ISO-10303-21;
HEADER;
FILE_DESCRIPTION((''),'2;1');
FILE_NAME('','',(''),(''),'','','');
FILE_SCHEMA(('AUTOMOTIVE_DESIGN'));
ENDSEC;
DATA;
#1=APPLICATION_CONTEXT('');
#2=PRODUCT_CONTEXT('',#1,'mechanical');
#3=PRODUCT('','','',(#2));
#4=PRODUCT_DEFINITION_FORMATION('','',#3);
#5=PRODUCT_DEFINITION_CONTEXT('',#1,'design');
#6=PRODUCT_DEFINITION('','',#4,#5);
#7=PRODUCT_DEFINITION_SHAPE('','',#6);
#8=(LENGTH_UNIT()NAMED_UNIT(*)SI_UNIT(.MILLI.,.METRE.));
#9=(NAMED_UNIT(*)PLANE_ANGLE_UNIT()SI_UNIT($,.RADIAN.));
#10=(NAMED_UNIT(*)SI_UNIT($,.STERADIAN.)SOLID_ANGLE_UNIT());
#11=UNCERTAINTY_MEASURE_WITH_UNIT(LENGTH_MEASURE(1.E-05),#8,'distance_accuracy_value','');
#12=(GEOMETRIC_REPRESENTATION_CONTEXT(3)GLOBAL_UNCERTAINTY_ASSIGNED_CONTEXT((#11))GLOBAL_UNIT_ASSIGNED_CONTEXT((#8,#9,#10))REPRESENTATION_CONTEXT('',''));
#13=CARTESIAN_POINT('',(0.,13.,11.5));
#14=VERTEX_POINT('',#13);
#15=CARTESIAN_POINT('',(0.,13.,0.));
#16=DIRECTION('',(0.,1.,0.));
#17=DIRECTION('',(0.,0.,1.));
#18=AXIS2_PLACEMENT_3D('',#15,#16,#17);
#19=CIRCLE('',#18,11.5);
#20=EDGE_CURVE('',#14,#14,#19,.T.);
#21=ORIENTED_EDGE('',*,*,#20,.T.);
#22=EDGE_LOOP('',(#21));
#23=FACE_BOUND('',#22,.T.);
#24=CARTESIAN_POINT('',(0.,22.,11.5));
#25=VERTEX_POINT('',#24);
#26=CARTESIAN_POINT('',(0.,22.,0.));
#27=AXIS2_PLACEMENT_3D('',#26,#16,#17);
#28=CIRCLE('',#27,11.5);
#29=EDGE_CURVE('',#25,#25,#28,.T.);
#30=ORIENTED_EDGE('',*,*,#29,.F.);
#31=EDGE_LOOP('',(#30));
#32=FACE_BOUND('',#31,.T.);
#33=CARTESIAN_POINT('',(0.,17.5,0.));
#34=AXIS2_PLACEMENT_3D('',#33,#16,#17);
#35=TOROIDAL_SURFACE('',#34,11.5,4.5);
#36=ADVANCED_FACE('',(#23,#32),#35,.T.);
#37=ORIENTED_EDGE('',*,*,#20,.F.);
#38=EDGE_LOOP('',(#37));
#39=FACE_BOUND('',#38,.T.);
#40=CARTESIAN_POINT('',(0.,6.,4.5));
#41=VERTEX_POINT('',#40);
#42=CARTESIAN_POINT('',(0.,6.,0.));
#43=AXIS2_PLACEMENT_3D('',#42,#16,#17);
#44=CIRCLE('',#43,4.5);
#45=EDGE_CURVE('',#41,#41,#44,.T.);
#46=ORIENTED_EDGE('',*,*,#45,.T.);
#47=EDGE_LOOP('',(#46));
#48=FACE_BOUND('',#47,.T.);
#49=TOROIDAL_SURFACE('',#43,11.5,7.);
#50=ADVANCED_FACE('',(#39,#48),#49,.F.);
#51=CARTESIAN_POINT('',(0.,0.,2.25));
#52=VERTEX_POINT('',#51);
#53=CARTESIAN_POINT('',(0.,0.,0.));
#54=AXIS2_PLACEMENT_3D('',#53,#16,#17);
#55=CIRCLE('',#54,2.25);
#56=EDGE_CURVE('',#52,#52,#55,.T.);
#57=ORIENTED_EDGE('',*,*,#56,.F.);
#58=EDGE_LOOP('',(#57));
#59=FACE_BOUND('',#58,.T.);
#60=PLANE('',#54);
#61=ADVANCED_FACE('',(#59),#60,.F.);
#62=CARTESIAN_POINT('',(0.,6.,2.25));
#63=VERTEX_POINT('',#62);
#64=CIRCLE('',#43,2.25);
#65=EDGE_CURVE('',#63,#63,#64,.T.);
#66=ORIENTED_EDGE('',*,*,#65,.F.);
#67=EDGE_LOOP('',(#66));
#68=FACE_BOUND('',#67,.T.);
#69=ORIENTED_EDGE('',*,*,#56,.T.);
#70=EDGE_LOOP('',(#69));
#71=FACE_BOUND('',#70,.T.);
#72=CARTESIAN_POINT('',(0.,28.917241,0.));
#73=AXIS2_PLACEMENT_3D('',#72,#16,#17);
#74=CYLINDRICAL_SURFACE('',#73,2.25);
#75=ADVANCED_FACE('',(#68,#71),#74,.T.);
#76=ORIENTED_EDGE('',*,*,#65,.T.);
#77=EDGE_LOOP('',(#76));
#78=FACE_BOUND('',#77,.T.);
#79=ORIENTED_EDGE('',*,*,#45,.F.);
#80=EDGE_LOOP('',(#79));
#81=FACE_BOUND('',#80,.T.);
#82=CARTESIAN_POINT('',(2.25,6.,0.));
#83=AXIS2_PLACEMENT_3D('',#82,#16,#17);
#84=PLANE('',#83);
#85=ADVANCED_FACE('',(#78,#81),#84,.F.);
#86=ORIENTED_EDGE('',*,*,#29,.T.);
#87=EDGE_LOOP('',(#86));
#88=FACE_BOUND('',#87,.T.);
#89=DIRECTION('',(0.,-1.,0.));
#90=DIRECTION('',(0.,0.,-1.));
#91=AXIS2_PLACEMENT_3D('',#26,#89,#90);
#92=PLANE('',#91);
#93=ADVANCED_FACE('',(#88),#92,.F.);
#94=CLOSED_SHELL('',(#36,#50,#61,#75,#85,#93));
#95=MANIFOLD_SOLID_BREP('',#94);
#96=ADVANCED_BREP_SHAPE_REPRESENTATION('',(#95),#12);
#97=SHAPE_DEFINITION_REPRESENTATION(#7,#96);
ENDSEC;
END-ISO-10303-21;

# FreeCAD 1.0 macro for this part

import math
import FreeCAD as App
import Part
import Sketcher
from FreeCAD import Vector
Q = App.Units.Quantity

doc = App.newDocument("Part")
body = doc.addObject("PartDesign::Body", "Body")

sketch1 = body.newObject("Sketcher::SketchObject", "Sketch")
sketch1.AttachmentSupport = (doc.getObject("XY_Plane"), [""])
sketch1.MapMode = "FlatFace"
sketch1.addGeometry([
    Part.LineSegment(Vector(0, 0, 0), Vector(2.25, 0, 0)),
    Part.LineSegment(Vector(2.25, 0, 0), Vector(2.25, 6, 0)),
    Part.LineSegment(Vector(2.25, 6, 0), Vector(4.5, 6, 0)),
    Part.ArcOfCircle(Part.Circle(Vector(11.5, 6, 0), Vector(0, 0, 1), 7), math.radians(90), math.radians(180)),
    Part.ArcOfCircle(Part.Circle(Vector(11.5, 17.5, 0), Vector(0, 0, 1), 4.5), math.radians(-90), math.radians(90)),
    Part.LineSegment(Vector(11.5, 22, 0), Vector(0, 22, 0)),
    Part.LineSegment(Vector(0, 22, 0), Vector(0, 0, 0)),
], False)
sketch1.addConstraint([
    Sketcher.Constraint("Coincident", 0, 2, 1, 1),
    Sketcher.Constraint("Coincident", 1, 2, 2, 1),
    Sketcher.Constraint("Coincident", 2, 2, 3, 2),
    Sketcher.Constraint("Tangent", 3, 1, 4, 1),
    Sketcher.Constraint("Tangent", 4, 2, 5, 1),
    Sketcher.Constraint("Coincident", 5, 2, 6, 1),
    Sketcher.Constraint("Coincident", 6, 2, 0, 1),
    Sketcher.Constraint("Horizontal", 0),
    Sketcher.Constraint("Vertical", 1),
    Sketcher.Constraint("Horizontal", 2),
    Sketcher.Constraint("Horizontal", 5),
    Sketcher.Constraint("Vertical", 6),
    Sketcher.Constraint("Coincident", 6, 2, -1, 1),
    Sketcher.Constraint("Horizontal", 3, 3, 1, 2),
    Sketcher.Constraint("Vertical", 3, 3, 4, 3),
    Sketcher.Constraint("Equal", 0, 2),
    Sketcher.Constraint("Radius", 3, Q("7 mm")),
    Sketcher.Constraint("Radius", 4, Q("4.5 mm")),
    Sketcher.Constraint("DistanceY", 1, 1, 1, 2, Q("6 mm")),
    Sketcher.Constraint("DistanceX", 5, 2, 5, 1, Q("11.5 mm")),
])
revolution = body.newObject("PartDesign::Revolution", "Revolution")
revolution.Profile = sketch1
revolution.ReferenceAxis = (sketch1, ["V_Axis"])
revolution.Angle = 360

doc.recompute()
